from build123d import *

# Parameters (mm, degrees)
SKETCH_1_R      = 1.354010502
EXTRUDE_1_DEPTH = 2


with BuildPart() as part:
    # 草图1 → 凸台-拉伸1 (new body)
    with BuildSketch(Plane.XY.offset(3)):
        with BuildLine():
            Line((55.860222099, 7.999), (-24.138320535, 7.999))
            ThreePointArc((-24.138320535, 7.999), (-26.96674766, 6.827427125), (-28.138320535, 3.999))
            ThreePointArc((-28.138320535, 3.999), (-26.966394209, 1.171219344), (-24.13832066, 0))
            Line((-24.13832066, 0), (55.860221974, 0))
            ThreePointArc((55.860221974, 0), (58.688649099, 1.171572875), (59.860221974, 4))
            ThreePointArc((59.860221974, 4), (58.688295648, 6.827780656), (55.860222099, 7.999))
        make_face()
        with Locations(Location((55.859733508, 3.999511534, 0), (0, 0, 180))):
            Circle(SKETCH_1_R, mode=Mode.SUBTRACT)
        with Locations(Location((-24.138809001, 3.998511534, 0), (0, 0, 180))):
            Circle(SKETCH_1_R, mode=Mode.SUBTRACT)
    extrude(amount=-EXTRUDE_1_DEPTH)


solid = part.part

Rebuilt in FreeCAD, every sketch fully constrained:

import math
import FreeCAD as App
import Part
import Sketcher

V = App.Vector
Q = App.Units.Quantity

doc = App.newDocument("Part")
body = doc.addObject("PartDesign::Body", "Body")

# Sketch on XY plane
sketch1 = doc.addObject("Sketcher::SketchObject", "Sketch")
body.addObject(sketch1)
sketch1.AttachmentSupport = (doc.XY_Plane, [""])
sketch1.MapMode = "FlatFace"
sketch1.AttachmentOffset = App.Placement(V(0, 0, 3), App.Rotation())
sketch1.addGeometry(Part.LineSegment(V(55.9, 8, 0), V(-24.1, 8, 0)), False)
sketch1.addGeometry(Part.ArcOfCircle(Part.Circle(V(-24.1, 4, 0), V(0, 0, 1), 4), math.radians(90), math.radians(180)), False)
sketch1.addGeometry(Part.ArcOfCircle(Part.Circle(V(-24.1, 4, 0), V(0, 0, 1), 4), math.radians(-180), math.radians(-90)), False)
sketch1.addGeometry(Part.LineSegment(V(-24.1, 0, 0), V(55.9, 0, 0)), False)
sketch1.addGeometry(Part.ArcOfCircle(Part.Circle(V(55.9, 4, 0), V(0, 0, 1), 4), math.radians(-90), math.radians(0)), False)
sketch1.addGeometry(Part.ArcOfCircle(Part.Circle(V(55.9, 4, 0), V(0, 0, 1), 4), math.radians(0), math.radians(90)), False)
sketch1.addGeometry(Part.Circle(V(-24.1, 4, 0), V(0, 0, 1), 1.4), False)
sketch1.addGeometry(Part.Circle(V(55.9, 4, 0), V(0, 0, 1), 1.4), False)
sketch1.addConstraint(Sketcher.Constraint("Tangent", 0, 2, 1, 1))
sketch1.addConstraint(Sketcher.Constraint("Coincident", 1, 2, 2, 1))
sketch1.addConstraint(Sketcher.Constraint("Tangent", 2, 2, 3, 1))
sketch1.addConstraint(Sketcher.Constraint("Tangent", 3, 2, 4, 1))
sketch1.addConstraint(Sketcher.Constraint("Coincident", 4, 2, 5, 1))
sketch1.addConstraint(Sketcher.Constraint("Tangent", 5, 2, 0, 1))
sketch1.addConstraint(Sketcher.Constraint("Horizontal", 0))
sketch1.addConstraint(Sketcher.Constraint("Horizontal", 3))
sketch1.addConstraint(Sketcher.Constraint("Equal", 1, 2))
sketch1.addConstraint(Sketcher.Constraint("Equal", 2, 4))
sketch1.addConstraint(Sketcher.Constraint("Equal", 4, 5))
sketch1.addConstraint(Sketcher.Constraint("Equal", 6, 7))
sketch1.addConstraint(Sketcher.Constraint("PointOnObject", 2, 2, -1))
sketch1.addConstraint(Sketcher.Constraint("Horizontal", 5, 3, 1, 2))
sketch1.addConstraint(Sketcher.Constraint("Horizontal", 2, 3, 4, 2))
sketch1.addConstraint(Sketcher.Constraint("Radius", 1, Q("4 mm")))
sketch1.addConstraint(Sketcher.Constraint("Diameter", 6, Q("2.708021 mm")))
sketch1.addConstraint(Sketcher.Constraint("DistanceY", -1, 1, 1, 3, Q("3.999 mm")))
sketch1.addConstraint(Sketcher.Constraint("DistanceY", 6, 3, 7, 3, Q("0.001 mm")))
sketch1.addConstraint(Sketcher.Constraint("DistanceX", 0, 2, 0, 1, Q("79.998543 mm")))
sketch1.addConstraint(Sketcher.Constraint("DistanceX", 1, 3, -1, 1, Q("24.138321 mm")))
sketch1.addConstraint(Sketcher.Constraint("DistanceX", 6, 3, -1, 1, Q("24.138809 mm")))
sketch1.addConstraint(Sketcher.Constraint("DistanceY", -1, 1, 6, 3, Q("3.998512 mm")))
sketch1.addConstraint(Sketcher.Constraint("DistanceX", 7, 3, 4, 3, Q("0.000488 mm")))
pad1 = doc.addObject("PartDesign::Pad", "Pad")
body.addObject(pad1)
pad1.Profile = sketch1
pad1.Length = 2
pad1.Reversed = True

doc.recompute()
